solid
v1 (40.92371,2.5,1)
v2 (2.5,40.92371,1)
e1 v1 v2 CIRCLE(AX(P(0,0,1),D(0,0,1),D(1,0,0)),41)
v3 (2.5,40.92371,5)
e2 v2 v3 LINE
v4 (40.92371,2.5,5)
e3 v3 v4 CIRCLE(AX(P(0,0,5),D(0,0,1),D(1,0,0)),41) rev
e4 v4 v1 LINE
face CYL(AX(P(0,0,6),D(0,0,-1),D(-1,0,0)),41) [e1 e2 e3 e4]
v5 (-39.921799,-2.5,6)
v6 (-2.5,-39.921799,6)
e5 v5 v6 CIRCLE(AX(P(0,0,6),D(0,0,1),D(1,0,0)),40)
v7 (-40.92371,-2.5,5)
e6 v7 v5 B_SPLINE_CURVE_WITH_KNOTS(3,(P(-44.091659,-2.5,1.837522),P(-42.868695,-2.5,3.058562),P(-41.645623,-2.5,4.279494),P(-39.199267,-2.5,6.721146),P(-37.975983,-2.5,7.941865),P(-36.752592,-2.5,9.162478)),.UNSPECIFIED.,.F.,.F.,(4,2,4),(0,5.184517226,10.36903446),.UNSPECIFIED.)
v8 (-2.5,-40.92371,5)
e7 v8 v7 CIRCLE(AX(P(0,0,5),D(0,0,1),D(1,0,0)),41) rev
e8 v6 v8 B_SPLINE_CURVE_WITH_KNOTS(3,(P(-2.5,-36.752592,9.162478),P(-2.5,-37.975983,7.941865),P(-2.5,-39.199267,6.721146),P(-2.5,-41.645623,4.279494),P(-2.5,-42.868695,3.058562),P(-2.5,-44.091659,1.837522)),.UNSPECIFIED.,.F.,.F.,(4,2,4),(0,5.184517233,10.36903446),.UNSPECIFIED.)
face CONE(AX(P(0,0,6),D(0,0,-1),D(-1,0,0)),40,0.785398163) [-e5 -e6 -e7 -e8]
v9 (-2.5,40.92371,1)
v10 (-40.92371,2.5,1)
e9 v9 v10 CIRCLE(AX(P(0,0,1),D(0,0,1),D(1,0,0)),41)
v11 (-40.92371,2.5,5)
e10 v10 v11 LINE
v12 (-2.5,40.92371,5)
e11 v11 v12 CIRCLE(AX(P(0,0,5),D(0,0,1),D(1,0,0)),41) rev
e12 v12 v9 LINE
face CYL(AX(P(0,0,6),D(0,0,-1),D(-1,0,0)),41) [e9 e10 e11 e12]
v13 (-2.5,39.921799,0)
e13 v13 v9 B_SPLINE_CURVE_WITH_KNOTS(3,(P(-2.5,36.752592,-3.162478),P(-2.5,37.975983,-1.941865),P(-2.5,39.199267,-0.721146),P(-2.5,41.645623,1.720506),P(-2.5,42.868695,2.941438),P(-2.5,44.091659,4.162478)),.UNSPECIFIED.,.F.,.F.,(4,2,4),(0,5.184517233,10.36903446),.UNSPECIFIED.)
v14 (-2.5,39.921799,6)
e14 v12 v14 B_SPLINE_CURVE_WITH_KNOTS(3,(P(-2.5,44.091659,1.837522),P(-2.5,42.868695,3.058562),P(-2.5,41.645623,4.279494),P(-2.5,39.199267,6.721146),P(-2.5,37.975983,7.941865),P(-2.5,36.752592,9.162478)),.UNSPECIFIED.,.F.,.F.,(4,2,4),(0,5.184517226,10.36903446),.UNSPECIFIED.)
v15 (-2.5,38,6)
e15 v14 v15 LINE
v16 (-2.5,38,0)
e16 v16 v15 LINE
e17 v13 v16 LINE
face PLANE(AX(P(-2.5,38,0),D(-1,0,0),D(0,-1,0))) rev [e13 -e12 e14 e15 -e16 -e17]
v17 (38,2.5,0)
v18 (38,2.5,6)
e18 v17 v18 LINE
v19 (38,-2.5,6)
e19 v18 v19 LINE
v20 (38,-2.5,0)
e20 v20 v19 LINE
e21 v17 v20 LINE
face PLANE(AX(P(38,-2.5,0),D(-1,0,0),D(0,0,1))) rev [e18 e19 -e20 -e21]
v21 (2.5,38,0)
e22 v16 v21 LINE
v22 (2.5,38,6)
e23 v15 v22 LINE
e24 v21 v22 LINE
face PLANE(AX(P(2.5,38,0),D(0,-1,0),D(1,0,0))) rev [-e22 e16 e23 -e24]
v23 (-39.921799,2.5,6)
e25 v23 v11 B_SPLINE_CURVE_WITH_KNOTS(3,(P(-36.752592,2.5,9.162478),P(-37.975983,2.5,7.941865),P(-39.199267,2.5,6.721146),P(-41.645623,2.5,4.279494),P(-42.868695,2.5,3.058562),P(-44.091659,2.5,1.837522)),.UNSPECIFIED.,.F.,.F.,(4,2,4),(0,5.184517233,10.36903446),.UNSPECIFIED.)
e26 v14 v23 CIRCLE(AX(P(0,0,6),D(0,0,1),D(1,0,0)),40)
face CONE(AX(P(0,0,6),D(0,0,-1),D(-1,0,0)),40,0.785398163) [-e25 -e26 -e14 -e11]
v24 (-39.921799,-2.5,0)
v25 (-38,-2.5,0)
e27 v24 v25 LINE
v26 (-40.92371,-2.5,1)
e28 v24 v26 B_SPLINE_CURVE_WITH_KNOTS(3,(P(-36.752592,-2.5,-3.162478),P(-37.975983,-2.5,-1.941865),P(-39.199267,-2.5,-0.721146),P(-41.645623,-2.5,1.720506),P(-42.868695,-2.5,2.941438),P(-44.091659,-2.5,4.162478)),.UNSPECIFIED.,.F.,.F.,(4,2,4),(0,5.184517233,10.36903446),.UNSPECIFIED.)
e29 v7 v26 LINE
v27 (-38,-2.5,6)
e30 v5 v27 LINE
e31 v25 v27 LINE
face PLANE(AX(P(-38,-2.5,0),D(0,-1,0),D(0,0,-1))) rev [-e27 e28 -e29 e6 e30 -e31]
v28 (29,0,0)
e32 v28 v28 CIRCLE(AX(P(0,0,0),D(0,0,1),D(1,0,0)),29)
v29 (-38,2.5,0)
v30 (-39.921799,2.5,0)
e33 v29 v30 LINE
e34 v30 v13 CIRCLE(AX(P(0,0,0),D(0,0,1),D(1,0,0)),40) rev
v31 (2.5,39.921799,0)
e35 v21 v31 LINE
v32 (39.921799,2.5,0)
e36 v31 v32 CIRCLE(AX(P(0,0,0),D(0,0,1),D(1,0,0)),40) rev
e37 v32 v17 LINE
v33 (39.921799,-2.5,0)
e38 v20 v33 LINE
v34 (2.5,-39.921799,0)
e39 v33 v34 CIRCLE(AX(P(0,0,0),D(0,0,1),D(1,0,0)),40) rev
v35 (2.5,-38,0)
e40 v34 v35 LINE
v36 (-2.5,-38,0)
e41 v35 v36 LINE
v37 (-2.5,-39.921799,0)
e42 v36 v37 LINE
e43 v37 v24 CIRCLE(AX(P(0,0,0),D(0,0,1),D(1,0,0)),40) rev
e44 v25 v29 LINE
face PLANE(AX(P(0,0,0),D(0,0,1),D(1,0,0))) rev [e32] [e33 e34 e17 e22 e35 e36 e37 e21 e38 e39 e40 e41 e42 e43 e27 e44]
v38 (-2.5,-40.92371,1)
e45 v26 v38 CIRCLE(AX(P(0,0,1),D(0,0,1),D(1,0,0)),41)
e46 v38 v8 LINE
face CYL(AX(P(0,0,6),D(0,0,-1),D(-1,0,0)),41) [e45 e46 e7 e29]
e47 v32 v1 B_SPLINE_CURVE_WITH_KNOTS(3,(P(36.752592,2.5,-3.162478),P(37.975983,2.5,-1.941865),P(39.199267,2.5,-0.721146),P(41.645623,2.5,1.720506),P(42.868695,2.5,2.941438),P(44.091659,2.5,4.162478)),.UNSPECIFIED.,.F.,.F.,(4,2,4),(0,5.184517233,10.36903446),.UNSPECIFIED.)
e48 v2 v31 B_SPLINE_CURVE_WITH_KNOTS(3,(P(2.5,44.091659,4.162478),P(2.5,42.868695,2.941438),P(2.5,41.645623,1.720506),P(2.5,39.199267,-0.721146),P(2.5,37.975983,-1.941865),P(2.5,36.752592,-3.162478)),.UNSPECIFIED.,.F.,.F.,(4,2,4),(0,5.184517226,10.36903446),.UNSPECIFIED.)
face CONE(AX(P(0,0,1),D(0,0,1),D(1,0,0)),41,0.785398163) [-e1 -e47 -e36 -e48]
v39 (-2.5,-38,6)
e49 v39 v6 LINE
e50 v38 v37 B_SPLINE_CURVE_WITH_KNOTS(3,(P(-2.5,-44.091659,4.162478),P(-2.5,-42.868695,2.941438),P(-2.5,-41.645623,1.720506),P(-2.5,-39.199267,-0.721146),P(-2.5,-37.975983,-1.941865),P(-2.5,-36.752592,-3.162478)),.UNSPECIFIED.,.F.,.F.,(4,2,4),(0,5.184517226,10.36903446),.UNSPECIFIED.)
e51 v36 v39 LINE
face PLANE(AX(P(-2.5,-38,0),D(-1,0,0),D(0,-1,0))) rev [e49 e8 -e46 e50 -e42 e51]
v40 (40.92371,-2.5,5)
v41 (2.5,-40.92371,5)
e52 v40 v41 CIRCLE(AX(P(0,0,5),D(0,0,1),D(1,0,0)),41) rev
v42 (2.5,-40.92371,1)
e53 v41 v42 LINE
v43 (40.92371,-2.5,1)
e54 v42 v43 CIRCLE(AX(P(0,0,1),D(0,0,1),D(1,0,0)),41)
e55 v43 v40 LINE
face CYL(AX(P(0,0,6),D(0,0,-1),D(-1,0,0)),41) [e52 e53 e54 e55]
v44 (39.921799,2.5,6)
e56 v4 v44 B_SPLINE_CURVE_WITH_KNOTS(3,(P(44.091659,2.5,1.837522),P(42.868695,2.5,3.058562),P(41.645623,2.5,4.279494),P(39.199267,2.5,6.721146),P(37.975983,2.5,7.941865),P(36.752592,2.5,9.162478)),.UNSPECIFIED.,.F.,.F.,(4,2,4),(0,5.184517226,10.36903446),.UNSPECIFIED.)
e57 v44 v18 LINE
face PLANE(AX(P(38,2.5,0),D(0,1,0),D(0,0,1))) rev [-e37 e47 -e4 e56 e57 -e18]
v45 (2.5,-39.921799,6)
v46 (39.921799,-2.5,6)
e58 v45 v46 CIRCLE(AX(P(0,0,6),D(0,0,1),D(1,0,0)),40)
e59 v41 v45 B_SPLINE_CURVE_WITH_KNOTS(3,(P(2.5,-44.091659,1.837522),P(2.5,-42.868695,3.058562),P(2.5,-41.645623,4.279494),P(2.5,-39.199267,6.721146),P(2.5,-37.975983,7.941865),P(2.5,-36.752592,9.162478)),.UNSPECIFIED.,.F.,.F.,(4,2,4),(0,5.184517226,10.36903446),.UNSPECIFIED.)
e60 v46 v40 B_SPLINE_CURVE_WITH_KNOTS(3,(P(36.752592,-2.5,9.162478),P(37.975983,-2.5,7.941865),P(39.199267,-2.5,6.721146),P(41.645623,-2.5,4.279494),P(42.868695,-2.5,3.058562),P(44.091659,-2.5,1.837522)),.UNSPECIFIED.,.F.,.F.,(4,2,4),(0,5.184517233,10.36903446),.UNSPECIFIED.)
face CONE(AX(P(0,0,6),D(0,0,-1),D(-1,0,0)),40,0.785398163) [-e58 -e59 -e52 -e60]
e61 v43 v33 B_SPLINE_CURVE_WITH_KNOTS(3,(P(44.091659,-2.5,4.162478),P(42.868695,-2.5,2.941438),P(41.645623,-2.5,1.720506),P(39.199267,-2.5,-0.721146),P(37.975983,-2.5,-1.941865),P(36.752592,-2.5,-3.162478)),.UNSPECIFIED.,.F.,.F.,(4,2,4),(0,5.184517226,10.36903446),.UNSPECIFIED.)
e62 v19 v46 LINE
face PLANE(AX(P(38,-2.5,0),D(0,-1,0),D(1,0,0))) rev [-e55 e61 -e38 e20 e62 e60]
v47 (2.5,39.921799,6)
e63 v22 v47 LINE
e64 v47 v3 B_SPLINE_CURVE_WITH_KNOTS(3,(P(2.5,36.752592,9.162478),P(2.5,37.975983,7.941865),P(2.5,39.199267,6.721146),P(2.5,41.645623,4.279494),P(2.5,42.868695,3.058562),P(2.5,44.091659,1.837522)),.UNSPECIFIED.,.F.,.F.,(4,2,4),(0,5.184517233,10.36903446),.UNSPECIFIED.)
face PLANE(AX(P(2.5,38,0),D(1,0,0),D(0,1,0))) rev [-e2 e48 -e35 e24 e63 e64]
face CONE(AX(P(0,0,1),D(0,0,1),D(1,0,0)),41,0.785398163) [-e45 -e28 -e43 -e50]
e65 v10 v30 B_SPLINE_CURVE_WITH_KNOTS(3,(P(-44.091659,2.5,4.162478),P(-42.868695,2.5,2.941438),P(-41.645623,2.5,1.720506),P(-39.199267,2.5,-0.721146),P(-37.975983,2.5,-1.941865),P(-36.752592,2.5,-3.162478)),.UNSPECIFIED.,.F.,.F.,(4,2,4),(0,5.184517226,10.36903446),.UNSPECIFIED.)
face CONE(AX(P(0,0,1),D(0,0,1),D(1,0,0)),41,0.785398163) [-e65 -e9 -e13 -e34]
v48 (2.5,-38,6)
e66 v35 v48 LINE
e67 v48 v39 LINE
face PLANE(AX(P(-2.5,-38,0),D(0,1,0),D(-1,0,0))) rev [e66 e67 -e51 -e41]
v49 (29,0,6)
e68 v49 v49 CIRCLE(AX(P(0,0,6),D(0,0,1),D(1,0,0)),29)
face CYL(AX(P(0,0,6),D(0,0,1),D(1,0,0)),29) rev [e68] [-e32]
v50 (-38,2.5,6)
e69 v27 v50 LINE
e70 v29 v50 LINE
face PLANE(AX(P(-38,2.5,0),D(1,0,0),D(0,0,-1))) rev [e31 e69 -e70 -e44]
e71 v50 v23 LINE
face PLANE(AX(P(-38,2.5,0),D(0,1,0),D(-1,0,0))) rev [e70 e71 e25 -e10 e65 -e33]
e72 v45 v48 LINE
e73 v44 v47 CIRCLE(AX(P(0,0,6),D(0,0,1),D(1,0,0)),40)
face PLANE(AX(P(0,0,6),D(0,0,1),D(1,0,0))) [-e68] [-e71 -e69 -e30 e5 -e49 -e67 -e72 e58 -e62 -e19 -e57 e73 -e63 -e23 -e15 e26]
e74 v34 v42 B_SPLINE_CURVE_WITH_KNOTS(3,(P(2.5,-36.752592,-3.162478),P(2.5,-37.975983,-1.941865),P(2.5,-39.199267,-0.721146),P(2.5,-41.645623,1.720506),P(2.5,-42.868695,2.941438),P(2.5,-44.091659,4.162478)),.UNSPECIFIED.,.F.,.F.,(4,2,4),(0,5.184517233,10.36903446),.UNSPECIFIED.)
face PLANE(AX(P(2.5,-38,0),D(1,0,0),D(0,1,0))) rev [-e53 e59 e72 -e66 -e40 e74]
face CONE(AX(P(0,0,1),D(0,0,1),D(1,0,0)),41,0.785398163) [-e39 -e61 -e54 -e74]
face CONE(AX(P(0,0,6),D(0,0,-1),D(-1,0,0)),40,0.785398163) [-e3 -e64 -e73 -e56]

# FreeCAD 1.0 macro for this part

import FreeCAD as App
import Part
import Sketcher
from FreeCAD import Vector
Q = App.Units.Quantity


def edges_at(feature, points):
    """Names of the edges that pass closest to the given points."""
    edges = feature.Shape.Edges
    near = lambda p: min(range(len(edges)), key=lambda i: edges[i].distToShape(Part.Vertex(*p))[0])
    return sorted({f"Edge{near(p) + 1}" for p in points})

doc = App.newDocument("Part")
body = doc.addObject("PartDesign::Body", "Body")

# Sketch on XY plane
sketch1 = body.newObject("Sketcher::SketchObject", "Sketch")
sketch1.AttachmentSupport = (doc.getObject("XY_Plane"), [""])
sketch1.MapMode = "FlatFace"
sketch1.addGeometry(Part.Circle(Vector(0, 0, 0), Vector(0, 0, 1), 41), False)
sketch1.addConstraint([
    Sketcher.Constraint("Coincident", 0, 3, -1, 1),
    Sketcher.Constraint("Diameter", 0, Q("82 mm")),
])
pad1 = body.newObject("PartDesign::Pad", "Pad")
pad1.Profile = sketch1
pad1.Length = 6

# Sketch on XY plane
sketch2 = body.newObject("Sketcher::SketchObject", "Sketch001")
sketch2.AttachmentSupport = (doc.getObject("XY_Plane"), [""])
sketch2.MapMode = "FlatFace"
sketch2.AttachmentOffset = App.Placement(Vector(0, 0, 6), App.Rotation())
sketch2.addGeometry(Part.Circle(Vector(0, 0, 0), Vector(0, 0, 1), 29), False)
sketch2.addConstraint([
    Sketcher.Constraint("Coincident", 0, 3, -1, 1),
    Sketcher.Constraint("Diameter", 0, Q("58 mm")),
])
doc.recompute()
hole = body.newObject("PartDesign::Hole", "Hole")
hole.Profile = sketch2
hole.ThreadType = "None"
hole.Diameter = 58
hole.DepthType = "ThroughAll"
doc.recompute()

chamfer = body.newObject("PartDesign::Chamfer", "Chamfer")
chamfer.Base = (hole, edges_at(hole, [(-41, 0, 0), (-41, 0, 6)]))
chamfer.Size = 1

# Sketch on XY plane
sketch3 = body.newObject("Sketcher::SketchObject", "Sketch002")
sketch3.AttachmentSupport = (doc.getObject("XY_Plane"), [""])
sketch3.MapMode = "FlatFace"
sketch3.AttachmentOffset = App.Placement(Vector(0, 0, 6), App.Rotation())
sketch3.addGeometry([
    Part.LineSegment(Vector(38, 2.5, 0), Vector(38, -2.5, 0)),
    Part.LineSegment(Vector(38, -2.5, 0), Vector(41, -2.5, 0)),
    Part.LineSegment(Vector(41, -2.5, 0), Vector(41, 2.5, 0)),
    Part.LineSegment(Vector(41, 2.5, 0), Vector(38, 2.5, 0)),
], False)
sketch3.addConstraint([
    Sketcher.Constraint("Coincident", 0, 2, 1, 1),
    Sketcher.Constraint("Coincident", 1, 2, 2, 1),
    Sketcher.Constraint("Coincident", 2, 2, 3, 1),
    Sketcher.Constraint("Coincident", 3, 2, 0, 1),
    Sketcher.Constraint("Vertical", 0),
    Sketcher.Constraint("Horizontal", 1),
    Sketcher.Constraint("Vertical", 2),
    Sketcher.Constraint("Horizontal", 3),
    Sketcher.Constraint("DistanceX", 1, 1, 1, 2, Q("3 mm")),
    Sketcher.Constraint("DistanceY", 0, 2, 0, 1, Q("5 mm")),
    Sketcher.Constraint("DistanceX", -1, 1, 0, 2, Q("38 mm")),
    Sketcher.Constraint("DistanceY", 0, 2, -1, 1, Q("2.5 mm")),
])
pocket1 = body.newObject("PartDesign::Pocket", "Pocket")
pocket1.Profile = sketch3
pocket1.Type = "ThroughAll"
doc.recompute()

polarpattern = body.newObject("PartDesign::PolarPattern", "PolarPattern")
polarpattern.Originals = [pocket1]
polarpattern.Axis = (doc.getObject("Z_Axis"), [""])
polarpattern.Angle = 360
polarpattern.Occurrences = 4
body.Tip = polarpattern

doc.recompute()
